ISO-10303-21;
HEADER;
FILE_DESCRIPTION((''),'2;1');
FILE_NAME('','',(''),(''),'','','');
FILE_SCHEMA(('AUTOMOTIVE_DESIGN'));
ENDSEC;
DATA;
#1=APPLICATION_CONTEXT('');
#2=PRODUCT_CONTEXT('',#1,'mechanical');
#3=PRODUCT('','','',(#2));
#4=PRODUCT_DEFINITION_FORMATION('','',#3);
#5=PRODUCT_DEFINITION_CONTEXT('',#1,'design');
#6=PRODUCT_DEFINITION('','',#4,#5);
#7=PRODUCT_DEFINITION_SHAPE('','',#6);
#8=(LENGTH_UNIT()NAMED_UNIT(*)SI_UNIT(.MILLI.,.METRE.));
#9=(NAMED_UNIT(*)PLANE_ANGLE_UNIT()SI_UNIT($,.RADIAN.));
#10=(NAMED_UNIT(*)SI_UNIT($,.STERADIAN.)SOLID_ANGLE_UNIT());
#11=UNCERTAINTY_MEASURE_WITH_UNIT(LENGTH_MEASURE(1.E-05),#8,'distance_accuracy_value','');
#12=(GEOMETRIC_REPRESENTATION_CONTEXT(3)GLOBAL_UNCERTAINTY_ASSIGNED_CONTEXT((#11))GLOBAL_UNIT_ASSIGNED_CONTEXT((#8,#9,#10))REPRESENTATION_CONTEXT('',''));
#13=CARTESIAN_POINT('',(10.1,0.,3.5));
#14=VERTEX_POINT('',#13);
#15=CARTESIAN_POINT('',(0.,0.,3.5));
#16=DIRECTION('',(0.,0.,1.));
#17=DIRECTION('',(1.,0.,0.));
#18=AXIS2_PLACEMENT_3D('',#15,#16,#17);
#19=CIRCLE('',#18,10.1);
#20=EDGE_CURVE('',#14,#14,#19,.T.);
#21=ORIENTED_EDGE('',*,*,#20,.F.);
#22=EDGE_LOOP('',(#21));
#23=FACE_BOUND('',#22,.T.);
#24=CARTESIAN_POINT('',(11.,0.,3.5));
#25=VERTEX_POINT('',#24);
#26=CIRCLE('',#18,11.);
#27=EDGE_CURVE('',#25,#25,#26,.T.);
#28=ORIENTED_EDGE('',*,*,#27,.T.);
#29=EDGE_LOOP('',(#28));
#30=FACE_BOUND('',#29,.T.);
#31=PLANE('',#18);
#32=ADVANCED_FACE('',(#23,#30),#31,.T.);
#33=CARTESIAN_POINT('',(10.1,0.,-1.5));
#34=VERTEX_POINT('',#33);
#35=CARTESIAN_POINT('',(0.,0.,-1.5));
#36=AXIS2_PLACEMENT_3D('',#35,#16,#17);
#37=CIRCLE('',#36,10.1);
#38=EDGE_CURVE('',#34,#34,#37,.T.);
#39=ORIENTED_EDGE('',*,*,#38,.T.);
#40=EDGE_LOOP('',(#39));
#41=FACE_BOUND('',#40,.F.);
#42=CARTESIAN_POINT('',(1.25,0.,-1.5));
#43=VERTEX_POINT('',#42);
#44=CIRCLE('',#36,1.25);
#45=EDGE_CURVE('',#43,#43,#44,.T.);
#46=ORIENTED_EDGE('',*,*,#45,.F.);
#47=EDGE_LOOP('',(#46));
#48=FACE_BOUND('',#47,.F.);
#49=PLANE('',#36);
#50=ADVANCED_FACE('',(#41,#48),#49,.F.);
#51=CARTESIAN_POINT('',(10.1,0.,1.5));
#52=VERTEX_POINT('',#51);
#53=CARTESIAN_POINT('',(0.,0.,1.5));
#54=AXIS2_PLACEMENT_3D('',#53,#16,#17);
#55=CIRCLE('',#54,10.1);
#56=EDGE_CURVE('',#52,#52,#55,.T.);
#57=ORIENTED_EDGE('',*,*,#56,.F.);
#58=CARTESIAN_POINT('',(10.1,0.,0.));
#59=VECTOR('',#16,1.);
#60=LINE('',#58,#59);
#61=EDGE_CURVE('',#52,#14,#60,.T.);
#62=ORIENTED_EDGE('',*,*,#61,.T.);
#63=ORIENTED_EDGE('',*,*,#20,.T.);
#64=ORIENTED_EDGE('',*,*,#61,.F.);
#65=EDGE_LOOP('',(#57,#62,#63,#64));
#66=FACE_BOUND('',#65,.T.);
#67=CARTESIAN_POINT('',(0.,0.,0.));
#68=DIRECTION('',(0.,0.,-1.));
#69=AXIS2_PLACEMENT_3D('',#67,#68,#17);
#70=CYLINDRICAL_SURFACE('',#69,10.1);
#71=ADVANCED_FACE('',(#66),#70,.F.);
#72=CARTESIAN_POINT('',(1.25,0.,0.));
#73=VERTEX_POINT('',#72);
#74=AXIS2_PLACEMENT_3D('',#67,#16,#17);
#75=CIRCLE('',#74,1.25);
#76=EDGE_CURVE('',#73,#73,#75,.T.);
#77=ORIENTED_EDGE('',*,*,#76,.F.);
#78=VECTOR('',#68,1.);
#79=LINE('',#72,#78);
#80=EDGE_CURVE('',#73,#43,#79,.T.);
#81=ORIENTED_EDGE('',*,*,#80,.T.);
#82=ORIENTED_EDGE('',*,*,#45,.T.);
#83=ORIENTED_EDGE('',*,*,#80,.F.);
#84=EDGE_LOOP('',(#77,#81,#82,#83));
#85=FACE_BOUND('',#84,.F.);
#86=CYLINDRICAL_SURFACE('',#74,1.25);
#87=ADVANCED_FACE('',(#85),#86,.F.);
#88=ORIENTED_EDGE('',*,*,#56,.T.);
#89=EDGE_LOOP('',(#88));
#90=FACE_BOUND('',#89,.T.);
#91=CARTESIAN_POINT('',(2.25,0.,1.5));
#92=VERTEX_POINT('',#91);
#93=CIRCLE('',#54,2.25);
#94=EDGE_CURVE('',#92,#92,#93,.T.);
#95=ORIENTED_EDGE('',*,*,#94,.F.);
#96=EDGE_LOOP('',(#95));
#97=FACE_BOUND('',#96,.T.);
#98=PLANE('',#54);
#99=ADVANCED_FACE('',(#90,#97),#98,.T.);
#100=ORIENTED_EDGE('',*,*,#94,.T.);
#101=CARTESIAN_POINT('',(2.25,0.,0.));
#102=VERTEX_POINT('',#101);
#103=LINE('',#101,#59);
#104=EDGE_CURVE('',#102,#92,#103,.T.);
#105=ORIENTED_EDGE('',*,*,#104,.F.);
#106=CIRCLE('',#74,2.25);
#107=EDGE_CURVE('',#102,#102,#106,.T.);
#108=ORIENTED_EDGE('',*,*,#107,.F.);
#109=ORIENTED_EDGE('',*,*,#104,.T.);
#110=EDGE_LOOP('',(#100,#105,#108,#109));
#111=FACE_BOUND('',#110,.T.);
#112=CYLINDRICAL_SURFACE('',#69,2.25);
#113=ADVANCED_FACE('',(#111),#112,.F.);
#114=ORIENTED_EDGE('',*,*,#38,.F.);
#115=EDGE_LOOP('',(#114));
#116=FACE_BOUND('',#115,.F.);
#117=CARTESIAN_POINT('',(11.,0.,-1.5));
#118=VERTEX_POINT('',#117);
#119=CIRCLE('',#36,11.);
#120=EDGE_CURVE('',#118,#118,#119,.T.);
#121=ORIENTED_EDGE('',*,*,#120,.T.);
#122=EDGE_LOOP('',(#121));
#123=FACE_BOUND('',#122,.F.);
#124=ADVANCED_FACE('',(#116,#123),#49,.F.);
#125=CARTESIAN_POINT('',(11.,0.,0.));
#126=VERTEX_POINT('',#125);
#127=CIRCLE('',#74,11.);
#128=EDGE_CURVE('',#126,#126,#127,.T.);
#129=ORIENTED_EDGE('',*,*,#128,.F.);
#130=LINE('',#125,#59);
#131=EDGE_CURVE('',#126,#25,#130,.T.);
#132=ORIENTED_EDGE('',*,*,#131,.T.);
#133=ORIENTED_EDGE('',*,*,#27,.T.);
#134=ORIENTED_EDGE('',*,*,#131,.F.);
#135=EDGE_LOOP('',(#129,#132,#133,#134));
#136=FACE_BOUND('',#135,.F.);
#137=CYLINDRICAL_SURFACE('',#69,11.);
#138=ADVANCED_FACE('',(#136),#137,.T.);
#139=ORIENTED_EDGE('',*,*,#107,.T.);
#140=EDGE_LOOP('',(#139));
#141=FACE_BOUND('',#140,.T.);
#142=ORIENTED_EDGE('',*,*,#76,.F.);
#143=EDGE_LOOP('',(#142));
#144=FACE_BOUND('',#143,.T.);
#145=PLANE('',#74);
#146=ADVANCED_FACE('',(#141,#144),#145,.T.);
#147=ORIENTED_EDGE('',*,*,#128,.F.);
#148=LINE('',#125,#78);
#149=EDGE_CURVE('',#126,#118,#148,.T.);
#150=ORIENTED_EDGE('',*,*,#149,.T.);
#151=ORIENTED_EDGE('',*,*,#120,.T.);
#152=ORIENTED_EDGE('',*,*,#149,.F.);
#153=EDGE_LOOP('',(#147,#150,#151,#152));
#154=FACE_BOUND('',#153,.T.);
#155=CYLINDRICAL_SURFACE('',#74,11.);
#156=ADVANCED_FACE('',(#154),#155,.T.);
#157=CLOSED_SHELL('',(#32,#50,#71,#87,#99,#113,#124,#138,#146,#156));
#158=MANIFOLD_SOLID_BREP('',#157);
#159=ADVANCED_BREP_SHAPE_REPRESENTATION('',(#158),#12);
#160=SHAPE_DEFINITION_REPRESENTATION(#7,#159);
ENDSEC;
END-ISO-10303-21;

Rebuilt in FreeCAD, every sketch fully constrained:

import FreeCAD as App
import Part
import Sketcher

V = App.Vector

doc = App.newDocument("Part")
params = doc.addObject("Spreadsheet::Sheet", "Params")
for row, (alias, value) in enumerate([
    ("sketch1_diameter", "20.2 mm"),
    ("sketch1_diameter2", "2.5 mm"),
    ("pad1_length", "1.5 mm"),
    ("sketch2_diameter", "20.2 mm"),
    ("sketch2_diameter2", "4.5 mm"),
    ("pad2_length", "1.5 mm"),
    ("sketch3_diameter", "22 mm"),
    ("sketch3_diameter2", "20.2 mm"),
    ("pad3_length", "3.5 mm"),
    ("pad3_length2", "1.5 mm"),
], start=1):
    params.set(f"A{row}", alias)
    params.set(f"B{row}", "=" + value)
    params.setAlias(f"B{row}", alias)

body = doc.addObject("PartDesign::Body", "Body")

# Sketch on XY plane
sketch1 = body.newObject("Sketcher::SketchObject", "Sketch")
sketch1.AttachmentSupport = (doc.getObject("XY_Plane"), [""])
sketch1.MapMode = "FlatFace"
sketch1.addGeometry(Part.Circle(V(0, 0, 0), V(0, 0, 1), 10.1), False)
sketch1.addGeometry(Part.Circle(V(0, 0, 0), V(0, 0, 1), 1.2), False)
sketch1.addConstraint(Sketcher.Constraint("Coincident", 0, 3, -1, 1))
sketch1.addConstraint(Sketcher.Constraint("Coincident", 1, 3, -1, 1))
sketch1.addConstraint(Sketcher.Constraint("Diameter", 0, 20.2))
sketch1.addConstraint(Sketcher.Constraint("Diameter", 1, 2.5))
sketch1.setExpression("Constraints[2]", "Params.sketch1_diameter")
sketch1.setExpression("Constraints[3]", "Params.sketch1_diameter2")
pad1 = body.newObject("PartDesign::Pad", "Pad")
pad1.Profile = sketch1
pad1.setExpression("Length", "Params.pad1_length")
pad1.Reversed = True

# Sketch on XY plane
sketch2 = body.newObject("Sketcher::SketchObject", "Sketch001")
sketch2.AttachmentSupport = (doc.getObject("XY_Plane"), [""])
sketch2.MapMode = "FlatFace"
sketch2.addGeometry(Part.Circle(V(0, 0, 0), V(0, 0, 1), 10.1), False)
sketch2.addGeometry(Part.Circle(V(0, 0, 0), V(0, 0, 1), 2.2), False)
sketch2.addConstraint(Sketcher.Constraint("Coincident", 0, 3, -1, 1))
sketch2.addConstraint(Sketcher.Constraint("Coincident", 1, 3, -1, 1))
sketch2.addConstraint(Sketcher.Constraint("Diameter", 0, 20.2))
sketch2.addConstraint(Sketcher.Constraint("Diameter", 1, 4.5))
sketch2.setExpression("Constraints[2]", "Params.sketch2_diameter")
sketch2.setExpression("Constraints[3]", "Params.sketch2_diameter2")
pad2 = body.newObject("PartDesign::Pad", "Pad001")
pad2.Profile = sketch2
pad2.setExpression("Length", "Params.pad2_length")

# Sketch on XY plane
sketch3 = body.newObject("Sketcher::SketchObject", "Sketch002")
sketch3.AttachmentSupport = (doc.getObject("XY_Plane"), [""])
sketch3.MapMode = "FlatFace"
sketch3.addGeometry(Part.Circle(V(0, 0, 0), V(0, 0, 1), 11), False)
sketch3.addGeometry(Part.Circle(V(0, 0, 0), V(0, 0, 1), 10), False)
sketch3.addConstraint(Sketcher.Constraint("Coincident", 0, 3, -1, 1))
sketch3.addConstraint(Sketcher.Constraint("Coincident", 1, 3, -1, 1))
sketch3.addConstraint(Sketcher.Constraint("Diameter", 0, 22.0))
sketch3.addConstraint(Sketcher.Constraint("Diameter", 1, 20.2))
sketch3.setExpression("Constraints[2]", "Params.sketch3_diameter")
sketch3.setExpression("Constraints[3]", "Params.sketch3_diameter2")
pad3 = body.newObject("PartDesign::Pad", "Pad002")
pad3.Profile = sketch3
pad3.Type = "TwoLengths"
pad3.setExpression("Length", "Params.pad3_length")
pad3.setExpression("Length2", "Params.pad3_length2")

doc.recompute()
